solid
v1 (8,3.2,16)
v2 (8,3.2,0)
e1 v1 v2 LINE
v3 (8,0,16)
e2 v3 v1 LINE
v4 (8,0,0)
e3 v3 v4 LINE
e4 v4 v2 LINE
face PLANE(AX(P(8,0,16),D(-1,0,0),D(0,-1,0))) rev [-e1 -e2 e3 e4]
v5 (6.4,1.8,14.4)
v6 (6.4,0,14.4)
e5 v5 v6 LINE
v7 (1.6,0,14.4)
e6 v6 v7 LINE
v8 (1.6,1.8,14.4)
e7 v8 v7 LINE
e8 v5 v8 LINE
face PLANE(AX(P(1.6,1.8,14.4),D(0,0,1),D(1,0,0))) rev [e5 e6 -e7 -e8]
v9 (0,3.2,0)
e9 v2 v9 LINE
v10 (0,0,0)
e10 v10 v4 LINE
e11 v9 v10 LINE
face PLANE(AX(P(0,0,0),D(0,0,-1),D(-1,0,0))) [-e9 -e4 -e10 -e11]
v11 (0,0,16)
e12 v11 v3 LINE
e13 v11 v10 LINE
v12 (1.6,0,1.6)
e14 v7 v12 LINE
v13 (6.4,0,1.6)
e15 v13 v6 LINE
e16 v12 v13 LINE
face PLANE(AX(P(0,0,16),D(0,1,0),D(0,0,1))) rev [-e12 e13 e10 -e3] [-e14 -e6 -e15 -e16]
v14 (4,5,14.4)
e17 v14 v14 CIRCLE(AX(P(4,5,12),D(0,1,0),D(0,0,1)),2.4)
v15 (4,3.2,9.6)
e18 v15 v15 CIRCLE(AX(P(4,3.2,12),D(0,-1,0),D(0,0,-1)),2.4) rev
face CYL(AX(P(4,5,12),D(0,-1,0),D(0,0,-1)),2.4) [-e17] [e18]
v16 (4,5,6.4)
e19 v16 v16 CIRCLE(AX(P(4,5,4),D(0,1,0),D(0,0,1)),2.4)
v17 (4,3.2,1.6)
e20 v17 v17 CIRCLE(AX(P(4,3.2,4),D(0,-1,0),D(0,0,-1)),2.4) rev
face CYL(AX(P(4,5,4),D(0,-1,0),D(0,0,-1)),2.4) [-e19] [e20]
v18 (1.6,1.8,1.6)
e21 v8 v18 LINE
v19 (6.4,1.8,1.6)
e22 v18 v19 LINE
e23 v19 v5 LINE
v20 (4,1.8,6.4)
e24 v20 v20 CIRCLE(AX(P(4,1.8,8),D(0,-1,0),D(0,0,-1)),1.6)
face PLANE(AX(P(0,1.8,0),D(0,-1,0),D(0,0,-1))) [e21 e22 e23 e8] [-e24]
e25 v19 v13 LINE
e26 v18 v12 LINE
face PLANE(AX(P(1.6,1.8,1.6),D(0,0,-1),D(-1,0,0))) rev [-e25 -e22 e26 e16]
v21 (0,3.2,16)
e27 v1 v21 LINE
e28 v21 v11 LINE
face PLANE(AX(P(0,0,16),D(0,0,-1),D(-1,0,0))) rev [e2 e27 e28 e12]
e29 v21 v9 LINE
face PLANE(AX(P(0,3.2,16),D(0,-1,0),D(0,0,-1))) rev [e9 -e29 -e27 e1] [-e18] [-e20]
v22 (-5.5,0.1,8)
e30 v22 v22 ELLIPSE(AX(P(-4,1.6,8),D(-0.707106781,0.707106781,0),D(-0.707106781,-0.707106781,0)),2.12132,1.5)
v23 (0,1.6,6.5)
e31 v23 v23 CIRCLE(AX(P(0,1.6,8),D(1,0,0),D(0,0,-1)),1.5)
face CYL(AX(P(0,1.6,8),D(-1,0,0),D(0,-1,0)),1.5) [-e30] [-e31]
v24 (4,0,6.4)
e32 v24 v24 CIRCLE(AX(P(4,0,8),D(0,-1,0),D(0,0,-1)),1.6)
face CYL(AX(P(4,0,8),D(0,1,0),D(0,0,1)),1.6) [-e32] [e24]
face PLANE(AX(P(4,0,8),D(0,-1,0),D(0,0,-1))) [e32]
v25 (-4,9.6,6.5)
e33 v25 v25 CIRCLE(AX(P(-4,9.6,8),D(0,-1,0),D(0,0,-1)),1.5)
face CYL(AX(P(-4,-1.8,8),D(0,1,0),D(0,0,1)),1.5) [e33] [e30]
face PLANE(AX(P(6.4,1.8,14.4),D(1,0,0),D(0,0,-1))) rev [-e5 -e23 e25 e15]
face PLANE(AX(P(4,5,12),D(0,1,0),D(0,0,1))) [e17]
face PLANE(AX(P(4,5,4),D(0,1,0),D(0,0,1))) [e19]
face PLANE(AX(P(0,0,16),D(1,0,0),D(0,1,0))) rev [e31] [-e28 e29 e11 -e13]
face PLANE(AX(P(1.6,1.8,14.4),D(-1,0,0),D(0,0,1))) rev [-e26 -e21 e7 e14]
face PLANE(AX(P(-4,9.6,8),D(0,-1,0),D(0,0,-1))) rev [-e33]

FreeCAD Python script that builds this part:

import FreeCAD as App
import Part
import Sketcher

V = App.Vector
Q = App.Units.Quantity


def add_polygon(sketch, points):
    """Adds a closed chain of lines whose ends are joined by coincident constraints."""
    first, n = sketch.GeometryCount, len(points)
    for a, b in zip(points, points[1:] + points[:1]):
        sketch.addGeometry(Part.LineSegment(App.Vector(*a, 0), App.Vector(*b, 0)), False)
    for i in range(n):
        sketch.addConstraint(Sketcher.Constraint("Coincident", first + i, 2, first + (i + 1) % n, 1))

doc = App.newDocument("Part")
body = doc.addObject("PartDesign::Body", "Body")

# Sketch on XY plane
sketch1 = body.newObject("Sketcher::SketchObject", "Sketch")
sketch1.AttachmentSupport = (doc.getObject("XY_Plane"), [""])
sketch1.MapMode = "FlatFace"
add_polygon(sketch1, [(0, 3.2), (0, 0), (8, 0), (8, 3.2)])  # lines 0-3
sketch1.addConstraint(Sketcher.Constraint("Vertical", 0))
sketch1.addConstraint(Sketcher.Constraint("Horizontal", 1))
sketch1.addConstraint(Sketcher.Constraint("Vertical", 2))
sketch1.addConstraint(Sketcher.Constraint("Horizontal", 3))
sketch1.addConstraint(Sketcher.Constraint("Coincident", 0, 2, -1, 1))
sketch1.addConstraint(Sketcher.Constraint("DistanceX", 1, 1, 1, 2, Q("8 mm")))
sketch1.addConstraint(Sketcher.Constraint("DistanceY", 0, 2, 0, 1, Q("3.2 mm")))
pad1 = body.newObject("PartDesign::Pad", "Pad")
pad1.Profile = sketch1
pad1.Length = 16

# Sketch on XZ plane
sketch2 = body.newObject("Sketcher::SketchObject", "Sketch001")
sketch2.AttachmentSupport = (doc.getObject("XZ_Plane"), [""])
sketch2.MapMode = "FlatFace"
add_polygon(sketch2, [(1.6, 14.4), (1.6, 1.6), (6.4, 1.6), (6.4, 14.4)])  # lines 0-3
sketch2.addConstraint(Sketcher.Constraint("Vertical", 0))
sketch2.addConstraint(Sketcher.Constraint("Horizontal", 1))
sketch2.addConstraint(Sketcher.Constraint("Vertical", 2))
sketch2.addConstraint(Sketcher.Constraint("Horizontal", 3))
sketch2.addConstraint(Sketcher.Constraint("DistanceX", 1, 1, 1, 2, Q("4.8 mm")))
sketch2.addConstraint(Sketcher.Constraint("DistanceY", 0, 2, 0, 1, Q("12.8 mm")))
sketch2.addConstraint(Sketcher.Constraint("DistanceX", -1, 1, 0, 2, Q("1.6 mm")))
sketch2.addConstraint(Sketcher.Constraint("DistanceY", -1, 1, 0, 2, Q("1.6 mm")))
pocket1 = body.newObject("PartDesign::Pocket", "Pocket")
pocket1.Profile = sketch2
pocket1.Length = 1.8

# Sketch on XZ plane
sketch3 = body.newObject("Sketcher::SketchObject", "Sketch002")
sketch3.AttachmentSupport = (doc.getObject("XZ_Plane"), [""])
sketch3.MapMode = "FlatFace"
sketch3.AttachmentOffset = App.Placement(V(0, 0, -3.2), App.Rotation())
sketch3.addGeometry(Part.Circle(V(4, 4, 0), V(0, 0, 1), 2.4), False)
sketch3.addGeometry(Part.Circle(V(4, 12, 0), V(0, 0, 1), 2.4), False)
sketch3.addConstraint(Sketcher.Constraint("Equal", 0, 1))
sketch3.addConstraint(Sketcher.Constraint("Vertical", 0, 3, 1, 3))
sketch3.addConstraint(Sketcher.Constraint("Diameter", 0, Q("4.8 mm")))
sketch3.addConstraint(Sketcher.Constraint("DistanceX", -1, 1, 0, 3, Q("4 mm")))
sketch3.addConstraint(Sketcher.Constraint("DistanceY", -1, 1, 0, 3, Q("4 mm")))
sketch3.addConstraint(Sketcher.Constraint("DistanceY", -1, 1, 1, 3, Q("12 mm")))
pad2 = body.newObject("PartDesign::Pad", "Pad001")
pad2.Profile = sketch3
pad2.Length = 1.8
pad2.Reversed = True

# Sketch on XZ plane
sketch4 = body.newObject("Sketcher::SketchObject", "Sketch003")
sketch4.AttachmentSupport = (doc.getObject("XZ_Plane"), [""])
sketch4.MapMode = "FlatFace"
sketch4.AttachmentOffset = App.Placement(V(0, 0, -1.8), App.Rotation())
sketch4.addGeometry(Part.Circle(V(4, 8, 0), V(0, 0, 1), 1.6), False)
sketch4.addConstraint(Sketcher.Constraint("Diameter", 0, Q("3.2 mm")))
sketch4.addConstraint(Sketcher.Constraint("DistanceX", -1, 1, 0, 3, Q("4 mm")))
sketch4.addConstraint(Sketcher.Constraint("DistanceY", -1, 1, 0, 3, Q("8 mm")))
pad3 = body.newObject("PartDesign::Pad", "Pad002")
pad3.Profile = sketch4
pad3.Length = 1.8

# Sketch on YZ plane
sketch5 = body.newObject("Sketcher::SketchObject", "Sketch004")
sketch5.AttachmentSupport = (doc.getObject("YZ_Plane"), [""])
sketch5.MapMode = "FlatFace"
sketch5.addGeometry(Part.Circle(V(1.6, 8, 0), V(0, 0, 1), 1.5), False)
sketch5.addConstraint(Sketcher.Constraint("Diameter", 0, Q("3 mm")))
sketch5.addConstraint(Sketcher.Constraint("DistanceY", -1, 1, 0, 3, Q("8 mm")))
sketch5.addConstraint(Sketcher.Constraint("DistanceX", -1, 1, 0, 3, Q("1.6 mm")))

# Sketch on XY plane
sketch6 = body.newObject("Sketcher::SketchObject", "Sketch005")
sketch6.AttachmentSupport = (doc.getObject("XY_Plane"), [""])
sketch6.MapMode = "FlatFace"
sketch6.AttachmentOffset = App.Placement(V(0, 0, 8), App.Rotation())
sketch6.addGeometry(Part.LineSegment(V(0, 1.6, 0), V(-4, 1.6, 0)), False)
sketch6.addGeometry(Part.LineSegment(V(-4, 1.6, 0), V(-4, 9.6, 0)), False)
sketch6.addConstraint(Sketcher.Constraint("Coincident", 0, 2, 1, 1))
sketch6.addConstraint(Sketcher.Constraint("Horizontal", 0))
sketch6.addConstraint(Sketcher.Constraint("Vertical", 1))
sketch6.addConstraint(Sketcher.Constraint("PointOnObject", 0, 1, -2))
sketch6.addConstraint(Sketcher.Constraint("DistanceX", 0, 2, 0, 1, Q("4 mm")))
sketch6.addConstraint(Sketcher.Constraint("DistanceY", 1, 1, 1, 2, Q("8 mm")))
sketch6.addConstraint(Sketcher.Constraint("DistanceY", -1, 1, 0, 1, Q("1.6 mm")))
doc.recompute()

additivepipe = body.newObject("PartDesign::AdditivePipe", "AdditivePipe")
additivepipe.Profile = sketch5
additivepipe.Spine = (sketch6, ["Edge1", "Edge2"])
additivepipe.Transition = "Right corner"

doc.recompute()
